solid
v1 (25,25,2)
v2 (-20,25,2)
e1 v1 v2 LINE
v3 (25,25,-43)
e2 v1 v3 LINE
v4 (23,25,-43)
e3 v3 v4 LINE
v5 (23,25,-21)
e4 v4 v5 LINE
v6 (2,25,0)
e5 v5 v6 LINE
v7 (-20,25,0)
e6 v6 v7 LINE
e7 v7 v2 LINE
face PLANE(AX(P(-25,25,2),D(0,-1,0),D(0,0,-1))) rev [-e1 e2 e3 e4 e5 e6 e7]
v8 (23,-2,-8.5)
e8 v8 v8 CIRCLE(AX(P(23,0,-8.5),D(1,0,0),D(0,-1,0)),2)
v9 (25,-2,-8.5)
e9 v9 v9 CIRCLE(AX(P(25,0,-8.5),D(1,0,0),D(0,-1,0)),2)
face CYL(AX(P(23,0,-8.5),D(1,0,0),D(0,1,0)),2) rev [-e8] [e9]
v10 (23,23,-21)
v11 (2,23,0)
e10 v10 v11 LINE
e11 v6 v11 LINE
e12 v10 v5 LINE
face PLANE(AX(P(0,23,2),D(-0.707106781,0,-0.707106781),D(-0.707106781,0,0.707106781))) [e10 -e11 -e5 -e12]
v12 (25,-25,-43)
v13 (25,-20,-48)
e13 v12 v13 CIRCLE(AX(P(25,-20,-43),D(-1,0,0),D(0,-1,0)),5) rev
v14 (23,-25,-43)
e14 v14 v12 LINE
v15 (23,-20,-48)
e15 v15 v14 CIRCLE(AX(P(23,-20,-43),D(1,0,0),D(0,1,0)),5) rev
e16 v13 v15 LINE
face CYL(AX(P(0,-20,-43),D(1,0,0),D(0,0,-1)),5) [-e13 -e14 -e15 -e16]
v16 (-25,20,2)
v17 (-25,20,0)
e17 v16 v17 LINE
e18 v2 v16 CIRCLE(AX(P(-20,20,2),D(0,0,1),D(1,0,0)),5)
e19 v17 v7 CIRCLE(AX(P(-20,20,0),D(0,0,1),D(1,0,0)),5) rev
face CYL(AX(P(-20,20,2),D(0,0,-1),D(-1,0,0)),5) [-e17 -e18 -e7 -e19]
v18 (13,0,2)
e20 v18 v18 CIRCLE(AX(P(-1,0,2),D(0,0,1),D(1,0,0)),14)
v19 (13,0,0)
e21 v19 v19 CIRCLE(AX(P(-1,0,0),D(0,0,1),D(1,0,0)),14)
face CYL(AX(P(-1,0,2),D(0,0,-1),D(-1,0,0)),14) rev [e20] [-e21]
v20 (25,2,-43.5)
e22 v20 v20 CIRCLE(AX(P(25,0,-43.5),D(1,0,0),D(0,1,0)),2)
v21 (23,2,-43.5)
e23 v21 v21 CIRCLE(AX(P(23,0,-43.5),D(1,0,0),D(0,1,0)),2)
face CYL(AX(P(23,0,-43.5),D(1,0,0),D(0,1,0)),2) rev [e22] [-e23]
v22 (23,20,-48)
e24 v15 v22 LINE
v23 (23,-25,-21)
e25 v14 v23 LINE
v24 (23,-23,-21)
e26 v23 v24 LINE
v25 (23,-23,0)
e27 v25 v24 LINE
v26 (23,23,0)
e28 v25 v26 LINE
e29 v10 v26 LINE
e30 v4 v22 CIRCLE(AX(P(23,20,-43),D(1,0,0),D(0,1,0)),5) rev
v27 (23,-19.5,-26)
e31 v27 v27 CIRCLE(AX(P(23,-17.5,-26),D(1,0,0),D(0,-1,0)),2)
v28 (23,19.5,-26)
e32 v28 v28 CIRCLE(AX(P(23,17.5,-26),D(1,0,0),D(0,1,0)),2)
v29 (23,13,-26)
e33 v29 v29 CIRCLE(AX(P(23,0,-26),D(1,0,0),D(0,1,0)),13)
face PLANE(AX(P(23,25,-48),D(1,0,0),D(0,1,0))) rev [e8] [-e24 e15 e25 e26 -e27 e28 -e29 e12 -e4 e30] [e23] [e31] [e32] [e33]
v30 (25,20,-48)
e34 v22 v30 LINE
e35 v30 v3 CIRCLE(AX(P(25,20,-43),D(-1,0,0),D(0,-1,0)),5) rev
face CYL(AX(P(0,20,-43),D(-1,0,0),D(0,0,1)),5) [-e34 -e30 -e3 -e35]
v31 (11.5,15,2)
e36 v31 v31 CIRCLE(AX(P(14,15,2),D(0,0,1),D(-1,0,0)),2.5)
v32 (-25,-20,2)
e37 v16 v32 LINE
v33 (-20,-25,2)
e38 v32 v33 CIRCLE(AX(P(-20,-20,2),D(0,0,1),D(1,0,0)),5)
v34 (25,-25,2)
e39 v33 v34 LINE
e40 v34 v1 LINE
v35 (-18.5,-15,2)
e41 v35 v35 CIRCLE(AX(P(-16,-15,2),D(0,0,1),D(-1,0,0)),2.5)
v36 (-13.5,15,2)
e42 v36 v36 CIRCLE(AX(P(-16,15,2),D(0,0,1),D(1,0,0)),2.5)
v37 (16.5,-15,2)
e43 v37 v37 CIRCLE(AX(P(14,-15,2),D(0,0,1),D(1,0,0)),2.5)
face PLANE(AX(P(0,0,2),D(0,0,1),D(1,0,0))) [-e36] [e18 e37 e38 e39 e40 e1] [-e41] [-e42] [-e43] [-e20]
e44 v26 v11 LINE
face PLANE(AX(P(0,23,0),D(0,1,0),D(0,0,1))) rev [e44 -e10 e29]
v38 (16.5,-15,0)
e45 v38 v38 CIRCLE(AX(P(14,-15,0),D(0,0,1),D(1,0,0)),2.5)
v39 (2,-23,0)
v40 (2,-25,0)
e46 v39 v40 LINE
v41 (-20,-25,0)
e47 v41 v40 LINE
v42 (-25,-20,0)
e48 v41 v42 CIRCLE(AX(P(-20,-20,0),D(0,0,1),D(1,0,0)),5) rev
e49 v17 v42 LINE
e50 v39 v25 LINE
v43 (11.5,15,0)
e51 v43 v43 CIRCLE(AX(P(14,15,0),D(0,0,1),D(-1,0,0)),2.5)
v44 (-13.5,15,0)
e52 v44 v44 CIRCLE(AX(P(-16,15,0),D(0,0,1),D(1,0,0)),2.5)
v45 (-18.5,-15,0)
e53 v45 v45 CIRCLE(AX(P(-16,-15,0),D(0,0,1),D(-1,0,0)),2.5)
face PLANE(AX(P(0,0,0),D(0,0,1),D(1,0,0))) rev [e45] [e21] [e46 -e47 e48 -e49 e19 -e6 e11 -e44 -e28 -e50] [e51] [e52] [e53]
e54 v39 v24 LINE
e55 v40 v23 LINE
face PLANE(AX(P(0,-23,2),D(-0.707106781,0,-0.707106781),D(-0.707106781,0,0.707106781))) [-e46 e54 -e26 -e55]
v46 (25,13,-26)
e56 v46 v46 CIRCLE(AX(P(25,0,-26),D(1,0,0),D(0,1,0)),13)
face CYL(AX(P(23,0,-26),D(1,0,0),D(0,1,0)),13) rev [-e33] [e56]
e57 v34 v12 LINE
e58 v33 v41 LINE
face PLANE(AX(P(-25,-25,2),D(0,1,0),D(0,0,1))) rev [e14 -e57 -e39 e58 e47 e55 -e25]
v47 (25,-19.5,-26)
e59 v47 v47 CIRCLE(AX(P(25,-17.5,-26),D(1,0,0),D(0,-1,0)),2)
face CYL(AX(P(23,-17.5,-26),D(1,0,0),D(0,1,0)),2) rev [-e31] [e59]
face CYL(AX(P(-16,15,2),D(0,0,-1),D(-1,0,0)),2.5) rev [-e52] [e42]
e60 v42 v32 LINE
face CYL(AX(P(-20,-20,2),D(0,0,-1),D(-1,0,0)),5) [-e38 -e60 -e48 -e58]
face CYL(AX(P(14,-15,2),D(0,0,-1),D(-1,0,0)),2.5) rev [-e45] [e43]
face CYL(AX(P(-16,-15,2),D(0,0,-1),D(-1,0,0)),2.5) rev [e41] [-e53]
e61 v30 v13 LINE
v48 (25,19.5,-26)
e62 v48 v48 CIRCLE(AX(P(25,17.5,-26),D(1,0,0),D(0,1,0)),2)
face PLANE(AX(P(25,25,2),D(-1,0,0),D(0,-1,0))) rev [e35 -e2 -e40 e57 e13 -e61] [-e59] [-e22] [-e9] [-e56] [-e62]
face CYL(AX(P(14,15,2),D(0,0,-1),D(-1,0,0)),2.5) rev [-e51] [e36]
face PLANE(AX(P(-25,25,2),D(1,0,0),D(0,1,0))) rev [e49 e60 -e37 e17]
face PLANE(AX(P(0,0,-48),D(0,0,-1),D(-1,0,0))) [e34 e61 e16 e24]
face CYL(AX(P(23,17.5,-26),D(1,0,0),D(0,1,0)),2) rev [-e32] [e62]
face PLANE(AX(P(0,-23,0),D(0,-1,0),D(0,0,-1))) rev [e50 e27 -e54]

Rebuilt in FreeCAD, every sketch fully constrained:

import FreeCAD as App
import Part
import Sketcher


def edges_at(feature, points):
    """Names of the edges that pass closest to the given points."""
    edges = feature.Shape.Edges
    near = lambda p: min(range(len(edges)), key=lambda i: edges[i].distToShape(Part.Vertex(*p))[0])
    return sorted({f"Edge{near(p) + 1}" for p in points})

doc = App.newDocument("Part")
params = doc.addObject("Spreadsheet::Sheet", "Params")
for row, (alias, value) in enumerate([
    ("sketch1_diameter", "5 mm"),
    ("sketch1_diameter2", "28 mm"),
    ("sketch1_width", "50 mm"),
    ("pad1_length", "2 mm"),
    ("sketch2_width", "2 mm"),
    ("sketch2_height", "50 mm"),
    ("pad2_length", "48 mm"),
    ("sketch3_width", "25 mm"),
    ("pad3_length", "2 mm"),
    ("sketch4_width", "25 mm"),
    ("pad4_length", "2 mm"),
    ("sketch5_diameter", "26 mm"),
    ("sketch5_diameter2", "4 mm"),
    ("pocket1_length", "2 mm"),
    ("fillet_radius", "5 mm"),
], start=1):
    params.set(f"A{row}", alias)
    params.set(f"B{row}", "=" + value)
    params.setAlias(f"B{row}", alias)

body = doc.addObject("PartDesign::Body", "Body")

sketch1 = doc.addObject("Sketcher::SketchObject", "Sketch")
body.addObject(sketch1)
sketch1.AttachmentSupport = (doc.XY_Plane, [""])
sketch1.MapMode = "FlatFace"
sketch1.addGeometry(Part.LineSegment(App.Vector(-25, 25, 0), App.Vector(-25, -25, 0)), False)
sketch1.addGeometry(Part.LineSegment(App.Vector(-25, -25, 0), App.Vector(25, -25, 0)), False)
sketch1.addGeometry(Part.LineSegment(App.Vector(25, -25, 0), App.Vector(25, 25, 0)), False)
sketch1.addGeometry(Part.LineSegment(App.Vector(25, 25, 0), App.Vector(-25, 25, 0)), False)
sketch1.addGeometry(Part.Circle(App.Vector(-16, -15, 0), App.Vector(0, 0, 1), 2.5), False)
sketch1.addGeometry(Part.Circle(App.Vector(14, -15, 0), App.Vector(0, 0, 1), 2.5), False)
sketch1.addGeometry(Part.Circle(App.Vector(-16, 15, 0), App.Vector(0, 0, 1), 2.5), False)
sketch1.addGeometry(Part.Circle(App.Vector(-1, 0, 0), App.Vector(0, 0, 1), 14), False)
sketch1.addGeometry(Part.Circle(App.Vector(14, 15, 0), App.Vector(0, 0, 1), 2.5), False)
sketch1.addConstraint(Sketcher.Constraint("Coincident", 0, 2, 1, 1))
sketch1.addConstraint(Sketcher.Constraint("Coincident", 1, 2, 2, 1))
sketch1.addConstraint(Sketcher.Constraint("Coincident", 2, 2, 3, 1))
sketch1.addConstraint(Sketcher.Constraint("Coincident", 3, 2, 0, 1))
sketch1.addConstraint(Sketcher.Constraint("Vertical", 0))
sketch1.addConstraint(Sketcher.Constraint("Horizontal", 1))
sketch1.addConstraint(Sketcher.Constraint("Vertical", 2))
sketch1.addConstraint(Sketcher.Constraint("Horizontal", 3))
sketch1.addConstraint(Sketcher.Constraint("Equal", 4, 5))
sketch1.addConstraint(Sketcher.Constraint("Equal", 5, 6))
sketch1.addConstraint(Sketcher.Constraint("Equal", 6, 8))
sketch1.addConstraint(Sketcher.Constraint("Symmetric", 0, 2, 2, 2, -1, 1))
sketch1.addConstraint(Sketcher.Constraint("Symmetric", 4, 3, 6, 3, -1))
sketch1.addConstraint(Sketcher.Constraint("Symmetric", 5, 3, 8, 3, -1))
sketch1.addConstraint(Sketcher.Constraint("PointOnObject", 7, 3, -1))
sketch1.addConstraint(Sketcher.Constraint("Horizontal", 4, 3, 5, 3))
sketch1.addConstraint(Sketcher.Constraint("Equal", 3, 0))
sketch1.addConstraint(Sketcher.Constraint("Diameter", 4, 5.0))
sketch1.addConstraint(Sketcher.Constraint("Diameter", 7, 28.0))
sketch1.addConstraint(Sketcher.Constraint("DistanceX", 1, 1, 1, 2, 50.0))
sketch1.addConstraint(Sketcher.Constraint("DistanceX", 4, 3, -1, 1, 16.0))
sketch1.addConstraint(Sketcher.Constraint("DistanceY", 4, 3, -1, 1, 15.0))
sketch1.addConstraint(Sketcher.Constraint("DistanceX", -1, 1, 5, 3, 14.0))
sketch1.addConstraint(Sketcher.Constraint("DistanceX", 7, 3, -1, 1, 1.0))
sketch1.setExpression("Constraints[17]", "Params.sketch1_diameter")
sketch1.setExpression("Constraints[18]", "Params.sketch1_diameter2")
sketch1.setExpression("Constraints[19]", "Params.sketch1_width")
pad1 = doc.addObject("PartDesign::Pad", "Pad")
body.addObject(pad1)
pad1.Profile = sketch1
pad1.setExpression("Length", "Params.pad1_length")

sketch2 = doc.addObject("Sketcher::SketchObject", "Sketch001")
body.addObject(sketch2)
sketch2.AttachmentSupport = (doc.XY_Plane, [""])
sketch2.MapMode = "FlatFace"
sketch2.addGeometry(Part.LineSegment(App.Vector(25, 25, 0), App.Vector(25, -25, 0)), False)
sketch2.addGeometry(Part.LineSegment(App.Vector(25, -25, 0), App.Vector(23, -25, 0)), False)
sketch2.addGeometry(Part.LineSegment(App.Vector(23, -25, 0), App.Vector(23, 25, 0)), False)
sketch2.addGeometry(Part.LineSegment(App.Vector(23, 25, 0), App.Vector(25, 25, 0)), False)
sketch2.addConstraint(Sketcher.Constraint("Coincident", 0, 2, 1, 1))
sketch2.addConstraint(Sketcher.Constraint("Coincident", 1, 2, 2, 1))
sketch2.addConstraint(Sketcher.Constraint("Coincident", 2, 2, 3, 1))
sketch2.addConstraint(Sketcher.Constraint("Coincident", 3, 2, 0, 1))
sketch2.addConstraint(Sketcher.Constraint("Vertical", 0))
sketch2.addConstraint(Sketcher.Constraint("Horizontal", 1))
sketch2.addConstraint(Sketcher.Constraint("Vertical", 2))
sketch2.addConstraint(Sketcher.Constraint("Horizontal", 3))
sketch2.addConstraint(Sketcher.Constraint("DistanceX", 1, 2, 1, 1, 2.0))
sketch2.addConstraint(Sketcher.Constraint("DistanceY", 0, 2, 0, 1, 50.0))
sketch2.addConstraint(Sketcher.Constraint("DistanceX", -1, 1, 0, 2, 25.0))
sketch2.addConstraint(Sketcher.Constraint("DistanceY", 0, 2, -1, 1, 25.0))
sketch2.setExpression("Constraints[8]", "Params.sketch2_width")
sketch2.setExpression("Constraints[9]", "Params.sketch2_height")
pad2 = doc.addObject("PartDesign::Pad", "Pad001")
body.addObject(pad2)
pad2.Profile = sketch2
pad2.setExpression("Length", "Params.pad2_length")
pad2.Reversed = True

sketch3 = doc.addObject("Sketcher::SketchObject", "Sketch002")
body.addObject(sketch3)
sketch3.AttachmentSupport = (doc.XZ_Plane, [""])
sketch3.MapMode = "FlatFace"
sketch3.AttachmentOffset = App.Placement(App.Vector(0, 0, -25), App.Rotation())
sketch3.addGeometry(Part.LineSegment(App.Vector(25, -23, 0), App.Vector(0, 2, 0)), False)
sketch3.addGeometry(Part.LineSegment(App.Vector(0, 2, 0), App.Vector(25, 2, 0)), False)
sketch3.addGeometry(Part.LineSegment(App.Vector(25, 2, 0), App.Vector(25, -23, 0)), False)
sketch3.addConstraint(Sketcher.Constraint("Coincident", 0, 2, 1, 1))
sketch3.addConstraint(Sketcher.Constraint("Coincident", 1, 2, 2, 1))
sketch3.addConstraint(Sketcher.Constraint("Coincident", 2, 2, 0, 1))
sketch3.addConstraint(Sketcher.Constraint("Horizontal", 1))
sketch3.addConstraint(Sketcher.Constraint("Vertical", 2))
sketch3.addConstraint(Sketcher.Constraint("PointOnObject", 0, 2, -2))
sketch3.addConstraint(Sketcher.Constraint("Equal", 1, 2))
sketch3.addConstraint(Sketcher.Constraint("DistanceX", 1, 1, 1, 2, 25.0))
sketch3.addConstraint(Sketcher.Constraint("DistanceY", -1, 1, 0, 2, 2.0))
sketch3.setExpression("Constraints[7]", "Params.sketch3_width")
pad3 = doc.addObject("PartDesign::Pad", "Pad002")
body.addObject(pad3)
pad3.Profile = sketch3
pad3.setExpression("Length", "Params.pad3_length")

sketch4 = doc.addObject("Sketcher::SketchObject", "Sketch003")
body.addObject(sketch4)
sketch4.AttachmentSupport = (doc.XZ_Plane, [""])
sketch4.MapMode = "FlatFace"
sketch4.AttachmentOffset = App.Placement(App.Vector(0, 0, 25), App.Rotation())
sketch4.addGeometry(Part.LineSegment(App.Vector(25, 2, 0), App.Vector(0, 2, 0)), False)
sketch4.addGeometry(Part.LineSegment(App.Vector(0, 2, 0), App.Vector(25, -23, 0)), False)
sketch4.addGeometry(Part.LineSegment(App.Vector(25, -23, 0), App.Vector(25, 2, 0)), False)
sketch4.addConstraint(Sketcher.Constraint("Coincident", 0, 2, 1, 1))
sketch4.addConstraint(Sketcher.Constraint("Coincident", 1, 2, 2, 1))
sketch4.addConstraint(Sketcher.Constraint("Coincident", 2, 2, 0, 1))
sketch4.addConstraint(Sketcher.Constraint("Horizontal", 0))
sketch4.addConstraint(Sketcher.Constraint("Vertical", 2))
sketch4.addConstraint(Sketcher.Constraint("PointOnObject", 0, 2, -2))
sketch4.addConstraint(Sketcher.Constraint("Equal", 0, 2))
sketch4.addConstraint(Sketcher.Constraint("DistanceX", 0, 2, 0, 1, 25.0))
sketch4.addConstraint(Sketcher.Constraint("DistanceY", -1, 1, 0, 2, 2.0))
sketch4.setExpression("Constraints[7]", "Params.sketch4_width")
pad4 = doc.addObject("PartDesign::Pad", "Pad003")
body.addObject(pad4)
pad4.Profile = sketch4
pad4.setExpression("Length", "Params.pad4_length")
pad4.Reversed = True

sketch5 = doc.addObject("Sketcher::SketchObject", "Sketch004")
body.addObject(sketch5)
sketch5.AttachmentSupport = (doc.YZ_Plane, [""])
sketch5.MapMode = "FlatFace"
sketch5.AttachmentOffset = App.Placement(App.Vector(0, 0, 25), App.Rotation())
sketch5.addGeometry(Part.Circle(App.Vector(0, -26, 0), App.Vector(0, 0, 1), 13), False)
sketch5.addGeometry(Part.Circle(App.Vector(0, -43.5, 0), App.Vector(0, 0, 1), 2), False)
sketch5.addGeometry(Part.Circle(App.Vector(17.5, -26, 0), App.Vector(0, 0, 1), 2), False)
sketch5.addGeometry(Part.Circle(App.Vector(-17.5, -26, 0), App.Vector(0, 0, 1), 2), False)
sketch5.addGeometry(Part.Circle(App.Vector(0, -8.5, 0), App.Vector(0, 0, 1), 2), False)
sketch5.addConstraint(Sketcher.Constraint("Equal", 1, 2))
sketch5.addConstraint(Sketcher.Constraint("Equal", 2, 3))
sketch5.addConstraint(Sketcher.Constraint("Equal", 3, 4))
sketch5.addConstraint(Sketcher.Constraint("Symmetric", 2, 3, 3, 3, -2))
sketch5.addConstraint(Sketcher.Constraint("PointOnObject", 0, 3, -2))
sketch5.addConstraint(Sketcher.Constraint("PointOnObject", 1, 3, -2))
sketch5.addConstraint(Sketcher.Constraint("PointOnObject", 4, 3, -2))
sketch5.addConstraint(Sketcher.Constraint("Horizontal", 0, 3, 2, 3))
sketch5.addConstraint(Sketcher.Constraint("Diameter", 0, 26.0))
sketch5.addConstraint(Sketcher.Constraint("Diameter", 1, 4.0))
sketch5.addConstraint(Sketcher.Constraint("DistanceY", 0, 3, -1, 1, 26.0))
sketch5.addConstraint(Sketcher.Constraint("DistanceX", 3, 3, 2, 3, 35.0))
sketch5.addConstraint(Sketcher.Constraint("DistanceY", 1, 3, 4, 3, 35.0))
sketch5.addConstraint(Sketcher.Constraint("DistanceY", 1, 3, -1, 1, 43.5))
sketch5.setExpression("Constraints[8]", "Params.sketch5_diameter")
sketch5.setExpression("Constraints[9]", "Params.sketch5_diameter2")
pocket1 = doc.addObject("PartDesign::Pocket", "Pocket")
body.addObject(pocket1)
pocket1.Profile = sketch5
pocket1.setExpression("Length", "Params.pocket1_length")
doc.recompute()

fillet = doc.addObject("PartDesign::Fillet", "Fillet")
body.addObject(fillet)
fillet.Base = (pocket1, edges_at(pocket1, [
    (24, -25, -48),
    (24, 25, -48),
    (-25, -25, 1),
    (-25, 25, 1),
]))
fillet.setExpression("Radius", "Params.fillet_radius")

doc.recompute()
